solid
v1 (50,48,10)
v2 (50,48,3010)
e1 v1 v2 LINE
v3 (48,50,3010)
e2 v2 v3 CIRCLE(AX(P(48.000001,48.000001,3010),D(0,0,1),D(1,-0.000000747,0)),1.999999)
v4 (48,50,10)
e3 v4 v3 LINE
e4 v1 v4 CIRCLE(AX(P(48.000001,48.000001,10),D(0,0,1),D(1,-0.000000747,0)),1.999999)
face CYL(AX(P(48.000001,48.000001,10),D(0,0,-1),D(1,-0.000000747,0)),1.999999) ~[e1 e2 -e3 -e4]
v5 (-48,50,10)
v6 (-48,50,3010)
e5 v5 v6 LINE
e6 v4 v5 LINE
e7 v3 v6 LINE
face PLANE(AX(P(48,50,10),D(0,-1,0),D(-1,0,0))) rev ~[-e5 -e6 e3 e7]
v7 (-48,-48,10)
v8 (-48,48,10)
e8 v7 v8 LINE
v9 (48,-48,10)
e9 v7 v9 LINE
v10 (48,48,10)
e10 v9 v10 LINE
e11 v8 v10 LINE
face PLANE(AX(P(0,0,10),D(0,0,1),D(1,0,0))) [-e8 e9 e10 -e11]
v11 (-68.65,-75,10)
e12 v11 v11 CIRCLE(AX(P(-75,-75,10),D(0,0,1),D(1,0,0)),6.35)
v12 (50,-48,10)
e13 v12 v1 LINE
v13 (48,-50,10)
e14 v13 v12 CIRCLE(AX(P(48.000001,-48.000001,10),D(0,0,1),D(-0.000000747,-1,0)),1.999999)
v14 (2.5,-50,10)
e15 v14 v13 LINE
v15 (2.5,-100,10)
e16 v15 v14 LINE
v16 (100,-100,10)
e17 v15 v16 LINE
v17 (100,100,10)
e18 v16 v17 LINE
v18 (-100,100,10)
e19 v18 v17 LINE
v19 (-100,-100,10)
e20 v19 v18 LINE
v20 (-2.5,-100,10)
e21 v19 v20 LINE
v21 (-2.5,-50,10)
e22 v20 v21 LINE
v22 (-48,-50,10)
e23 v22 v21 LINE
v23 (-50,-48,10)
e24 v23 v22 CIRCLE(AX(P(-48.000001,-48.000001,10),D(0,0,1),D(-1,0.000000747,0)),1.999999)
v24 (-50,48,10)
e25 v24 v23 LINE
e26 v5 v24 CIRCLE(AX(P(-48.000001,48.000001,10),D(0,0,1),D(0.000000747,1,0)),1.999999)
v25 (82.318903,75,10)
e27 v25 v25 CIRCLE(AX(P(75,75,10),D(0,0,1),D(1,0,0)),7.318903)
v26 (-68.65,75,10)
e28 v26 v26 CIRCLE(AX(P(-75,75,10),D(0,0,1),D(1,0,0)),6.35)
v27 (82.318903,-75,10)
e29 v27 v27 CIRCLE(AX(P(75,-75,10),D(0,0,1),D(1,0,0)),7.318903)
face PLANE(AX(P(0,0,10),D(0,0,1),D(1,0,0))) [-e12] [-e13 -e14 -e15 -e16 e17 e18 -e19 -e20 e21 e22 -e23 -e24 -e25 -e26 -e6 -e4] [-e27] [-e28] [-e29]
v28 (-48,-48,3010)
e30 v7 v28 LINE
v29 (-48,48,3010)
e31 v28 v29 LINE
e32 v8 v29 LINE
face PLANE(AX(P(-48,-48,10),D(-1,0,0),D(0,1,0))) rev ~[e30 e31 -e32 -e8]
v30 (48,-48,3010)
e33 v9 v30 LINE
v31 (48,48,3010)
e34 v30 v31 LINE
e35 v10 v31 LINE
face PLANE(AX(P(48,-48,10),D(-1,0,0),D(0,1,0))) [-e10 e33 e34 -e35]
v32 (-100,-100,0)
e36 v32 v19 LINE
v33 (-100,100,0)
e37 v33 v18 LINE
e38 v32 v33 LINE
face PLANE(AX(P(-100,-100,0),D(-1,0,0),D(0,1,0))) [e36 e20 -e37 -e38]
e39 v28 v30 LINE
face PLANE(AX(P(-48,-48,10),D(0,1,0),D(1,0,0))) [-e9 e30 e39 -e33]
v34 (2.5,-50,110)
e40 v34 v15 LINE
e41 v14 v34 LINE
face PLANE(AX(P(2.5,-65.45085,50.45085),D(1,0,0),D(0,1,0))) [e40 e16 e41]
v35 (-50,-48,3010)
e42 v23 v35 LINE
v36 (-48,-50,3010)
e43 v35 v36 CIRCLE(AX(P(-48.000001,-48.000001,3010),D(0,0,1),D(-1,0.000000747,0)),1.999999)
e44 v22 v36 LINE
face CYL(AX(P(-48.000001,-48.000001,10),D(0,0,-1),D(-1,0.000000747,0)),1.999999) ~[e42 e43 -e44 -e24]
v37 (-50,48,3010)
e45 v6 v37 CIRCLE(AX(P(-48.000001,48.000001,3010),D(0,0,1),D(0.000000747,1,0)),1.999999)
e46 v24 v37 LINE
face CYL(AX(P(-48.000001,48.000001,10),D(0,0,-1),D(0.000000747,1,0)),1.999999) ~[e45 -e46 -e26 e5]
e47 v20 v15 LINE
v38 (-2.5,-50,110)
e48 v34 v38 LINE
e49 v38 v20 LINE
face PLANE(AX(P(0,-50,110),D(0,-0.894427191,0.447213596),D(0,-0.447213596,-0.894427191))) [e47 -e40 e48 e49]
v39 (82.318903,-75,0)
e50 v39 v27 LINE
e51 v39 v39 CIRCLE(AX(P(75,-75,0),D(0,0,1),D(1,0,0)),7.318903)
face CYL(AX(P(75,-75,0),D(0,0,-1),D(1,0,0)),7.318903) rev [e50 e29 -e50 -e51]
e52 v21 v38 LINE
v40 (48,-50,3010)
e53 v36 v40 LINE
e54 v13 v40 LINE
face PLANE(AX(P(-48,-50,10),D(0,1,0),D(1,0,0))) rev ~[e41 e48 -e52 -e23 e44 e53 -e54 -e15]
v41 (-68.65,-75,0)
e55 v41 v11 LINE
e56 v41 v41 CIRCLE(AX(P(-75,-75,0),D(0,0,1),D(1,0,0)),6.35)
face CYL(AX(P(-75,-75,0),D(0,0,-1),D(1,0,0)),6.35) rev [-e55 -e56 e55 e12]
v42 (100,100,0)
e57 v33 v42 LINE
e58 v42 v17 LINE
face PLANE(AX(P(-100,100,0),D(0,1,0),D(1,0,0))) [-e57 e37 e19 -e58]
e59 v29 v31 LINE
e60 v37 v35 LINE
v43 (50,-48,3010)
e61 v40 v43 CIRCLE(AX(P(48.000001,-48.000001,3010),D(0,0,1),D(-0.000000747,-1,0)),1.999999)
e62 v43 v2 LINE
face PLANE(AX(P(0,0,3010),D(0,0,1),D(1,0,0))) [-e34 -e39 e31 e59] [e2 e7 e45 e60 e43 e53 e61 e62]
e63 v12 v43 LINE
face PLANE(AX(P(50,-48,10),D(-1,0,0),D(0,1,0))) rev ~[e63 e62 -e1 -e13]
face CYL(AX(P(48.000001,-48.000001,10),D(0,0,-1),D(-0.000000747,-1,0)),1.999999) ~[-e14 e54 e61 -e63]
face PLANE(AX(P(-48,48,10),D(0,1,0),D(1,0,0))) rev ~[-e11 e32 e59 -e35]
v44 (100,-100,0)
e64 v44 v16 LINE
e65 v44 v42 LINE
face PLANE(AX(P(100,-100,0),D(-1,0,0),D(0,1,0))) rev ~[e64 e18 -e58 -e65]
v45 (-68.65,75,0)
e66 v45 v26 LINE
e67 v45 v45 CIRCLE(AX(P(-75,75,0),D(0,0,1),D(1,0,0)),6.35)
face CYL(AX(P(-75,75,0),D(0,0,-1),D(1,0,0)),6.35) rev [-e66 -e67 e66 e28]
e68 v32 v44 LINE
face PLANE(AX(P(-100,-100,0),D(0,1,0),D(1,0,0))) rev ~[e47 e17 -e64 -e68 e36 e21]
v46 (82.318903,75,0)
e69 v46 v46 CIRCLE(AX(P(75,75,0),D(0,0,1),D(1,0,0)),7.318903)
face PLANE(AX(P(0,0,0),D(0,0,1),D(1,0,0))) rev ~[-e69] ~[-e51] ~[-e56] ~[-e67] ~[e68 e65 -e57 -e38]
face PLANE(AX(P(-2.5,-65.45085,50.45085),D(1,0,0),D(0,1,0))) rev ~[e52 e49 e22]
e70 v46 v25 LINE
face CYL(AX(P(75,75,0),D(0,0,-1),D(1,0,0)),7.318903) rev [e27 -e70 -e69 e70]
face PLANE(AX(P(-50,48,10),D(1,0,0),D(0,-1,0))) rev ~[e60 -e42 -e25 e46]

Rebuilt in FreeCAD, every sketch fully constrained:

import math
import FreeCAD as App
import Part
import Sketcher


def add_polygon(sketch, points):
    """Adds a closed chain of lines whose ends are joined by coincident constraints."""
    first, n = sketch.GeometryCount, len(points)
    for a, b in zip(points, points[1:] + points[:1]):
        sketch.addGeometry(Part.LineSegment(App.Vector(*a, 0), App.Vector(*b, 0)), False)
    for i in range(n):
        sketch.addConstraint(Sketcher.Constraint("Coincident", first + i, 2, first + (i + 1) % n, 1))

doc = App.newDocument("Part")
body = doc.addObject("PartDesign::Body", "Body")

sketch1 = body.newObject("Sketcher::SketchObject", "Sketch")
sketch1.AttachmentSupport = (doc.getObject("XY_Plane"), [""])
sketch1.MapMode = "FlatFace"
add_polygon(sketch1, [(-100, 100), (-100, -100), (100, -100), (100, 100)])
sketch1.addGeometry(Part.Circle(App.Vector(-75, -75, 0), App.Vector(0, 0, 1), 6.35), False)
sketch1.addGeometry(Part.Circle(App.Vector(75, -75, 0), App.Vector(0, 0, 1), 7.318903), False)
sketch1.addGeometry(Part.Circle(App.Vector(-75, 75, 0), App.Vector(0, 0, 1), 6.35), False)
sketch1.addGeometry(Part.Circle(App.Vector(75, 75, 0), App.Vector(0, 0, 1), 7.318903), False)
sketch1.addConstraint(Sketcher.Constraint("Vertical", 0))
sketch1.addConstraint(Sketcher.Constraint("Horizontal", 1))
sketch1.addConstraint(Sketcher.Constraint("Vertical", 2))
sketch1.addConstraint(Sketcher.Constraint("Horizontal", 3))
sketch1.addConstraint(Sketcher.Constraint("Equal", 4, 6))
sketch1.addConstraint(Sketcher.Constraint("Equal", 5, 7))
sketch1.addConstraint(Sketcher.Constraint("Symmetric", 5, 3, 6, 3, -1, 1))
sketch1.addConstraint(Sketcher.Constraint("Symmetric", 4, 3, 7, 3, -1, 1))
sketch1.addConstraint(Sketcher.Constraint("Symmetric", 0, 2, 2, 2, -1, 1))
sketch1.addConstraint(Sketcher.Constraint("Symmetric", 4, 3, 5, 3, -2))
sketch1.addConstraint(Sketcher.Constraint("Equal", 3, 0))
sketch1.addConstraint(Sketcher.Constraint("Diameter", 4, 12.7))
sketch1.addConstraint(Sketcher.Constraint("DistanceX", 1, 1, 1, 2, 200.0))
sketch1.addConstraint(Sketcher.Constraint("DistanceX", 4, 3, -1, 1, 75.0))
sketch1.addConstraint(Sketcher.Constraint("DistanceY", 4, 3, -1, 1, 75.0))
sketch1.addConstraint(Sketcher.Constraint("Diameter", 5, 14.637806))
pad1 = body.newObject("PartDesign::Pad", "Pad")
pad1.Profile = sketch1
pad1.Length = 10

sketch2 = body.newObject("Sketcher::SketchObject", "Sketch001")
sketch2.AttachmentSupport = (doc.getObject("XY_Plane"), [""])
sketch2.MapMode = "FlatFace"
sketch2.AttachmentOffset = App.Placement(App.Vector(0, 0, 10), App.Rotation())
sketch2.addGeometry(Part.ArcOfCircle(Part.Circle(App.Vector(48.000001, 48.000001, 0), App.Vector(0, 0, 1), 1.999999), math.radians(-0.000043), math.radians(90.000043)), False)
sketch2.addGeometry(Part.LineSegment(App.Vector(48, 50, 0), App.Vector(-48, 50, 0)), False)
sketch2.addGeometry(Part.ArcOfCircle(Part.Circle(App.Vector(-48.000001, 48.000001, 0), App.Vector(0, 0, 1), 1.999999), math.radians(89.999957), math.radians(180.000043)), False)
sketch2.addGeometry(Part.LineSegment(App.Vector(-50, 48, 0), App.Vector(-50, -48, 0)), False)
sketch2.addGeometry(Part.ArcOfCircle(Part.Circle(App.Vector(-48.000001, -48.000001, 0), App.Vector(0, 0, 1), 1.999999), math.radians(179.999957), math.radians(270.000043)), False)
sketch2.addGeometry(Part.LineSegment(App.Vector(-48, -50, 0), App.Vector(48, -50, 0)), False)
sketch2.addGeometry(Part.ArcOfCircle(Part.Circle(App.Vector(48.000001, -48.000001, 0), App.Vector(0, 0, 1), 1.999999), math.radians(-90.000043), math.radians(0.000043)), False)
sketch2.addGeometry(Part.LineSegment(App.Vector(50, -48, 0), App.Vector(50, 48, 0)), False)
add_polygon(sketch2, [(48, -48), (-48, -48), (-48, 48), (48, 48)])
sketch2.addConstraint(Sketcher.Constraint("Tangent", 0, 2, 1, 1))
sketch2.addConstraint(Sketcher.Constraint("Tangent", 1, 2, 2, 1))
sketch2.addConstraint(Sketcher.Constraint("Tangent", 2, 2, 3, 1))
sketch2.addConstraint(Sketcher.Constraint("Tangent", 3, 2, 4, 1))
sketch2.addConstraint(Sketcher.Constraint("Tangent", 4, 2, 5, 1))
sketch2.addConstraint(Sketcher.Constraint("Tangent", 5, 2, 6, 1))
sketch2.addConstraint(Sketcher.Constraint("Tangent", 6, 2, 7, 1))
sketch2.addConstraint(Sketcher.Constraint("Tangent", 7, 2, 0, 1))
sketch2.addConstraint(Sketcher.Constraint("Horizontal", 1))
sketch2.addConstraint(Sketcher.Constraint("Vertical", 3))
sketch2.addConstraint(Sketcher.Constraint("Horizontal", 5))
sketch2.addConstraint(Sketcher.Constraint("Vertical", 7))
sketch2.addConstraint(Sketcher.Constraint("Horizontal", 8))
sketch2.addConstraint(Sketcher.Constraint("Vertical", 9))
sketch2.addConstraint(Sketcher.Constraint("Horizontal", 10))
sketch2.addConstraint(Sketcher.Constraint("Vertical", 11))
sketch2.addConstraint(Sketcher.Constraint("Coincident", 8, 2, 4, 3))
sketch2.addConstraint(Sketcher.Constraint("Coincident", 9, 2, 2, 3))
sketch2.addConstraint(Sketcher.Constraint("Coincident", 10, 2, 0, 3))
sketch2.addConstraint(Sketcher.Constraint("Equal", 4, 6))
sketch2.addConstraint(Sketcher.Constraint("Symmetric", 0, 3, 4, 3, -1, 1))
sketch2.addConstraint(Sketcher.Constraint("Equal", 10, 3))
sketch2.addConstraint(Sketcher.Constraint("Radius", 0, 1.999999))
sketch2.addConstraint(Sketcher.Constraint("DistanceX", 1, 2, 1, 1, 96.0))
pad2 = body.newObject("PartDesign::Pad", "Pad001")
pad2.Profile = sketch2
pad2.Length = 3000

sketch3 = body.newObject("Sketcher::SketchObject", "Sketch002")
sketch3.AttachmentSupport = (doc.getObject("YZ_Plane"), [""])
sketch3.MapMode = "FlatFace"
add_polygon(sketch3, [(-50, 110), (-100, 10), (-50, 10)])
sketch3.addConstraint(Sketcher.Constraint("Horizontal", 1))
sketch3.addConstraint(Sketcher.Constraint("Vertical", 2))
sketch3.addConstraint(Sketcher.Constraint("DistanceX", 1, 1, 1, 2, 50.0))
sketch3.addConstraint(Sketcher.Constraint("DistanceY", 2, 1, 2, 2, 100.0))
sketch3.addConstraint(Sketcher.Constraint("DistanceX", 0, 2, -1, 1, 100.0))
sketch3.addConstraint(Sketcher.Constraint("DistanceY", -1, 1, 0, 2, 10.0))
pad3 = body.newObject("PartDesign::Pad", "Pad002")
pad3.Profile = sketch3
pad3.Type = "TwoLengths"
pad3.Length = 2.5
pad3.Length2 = 2.5

doc.recompute()
